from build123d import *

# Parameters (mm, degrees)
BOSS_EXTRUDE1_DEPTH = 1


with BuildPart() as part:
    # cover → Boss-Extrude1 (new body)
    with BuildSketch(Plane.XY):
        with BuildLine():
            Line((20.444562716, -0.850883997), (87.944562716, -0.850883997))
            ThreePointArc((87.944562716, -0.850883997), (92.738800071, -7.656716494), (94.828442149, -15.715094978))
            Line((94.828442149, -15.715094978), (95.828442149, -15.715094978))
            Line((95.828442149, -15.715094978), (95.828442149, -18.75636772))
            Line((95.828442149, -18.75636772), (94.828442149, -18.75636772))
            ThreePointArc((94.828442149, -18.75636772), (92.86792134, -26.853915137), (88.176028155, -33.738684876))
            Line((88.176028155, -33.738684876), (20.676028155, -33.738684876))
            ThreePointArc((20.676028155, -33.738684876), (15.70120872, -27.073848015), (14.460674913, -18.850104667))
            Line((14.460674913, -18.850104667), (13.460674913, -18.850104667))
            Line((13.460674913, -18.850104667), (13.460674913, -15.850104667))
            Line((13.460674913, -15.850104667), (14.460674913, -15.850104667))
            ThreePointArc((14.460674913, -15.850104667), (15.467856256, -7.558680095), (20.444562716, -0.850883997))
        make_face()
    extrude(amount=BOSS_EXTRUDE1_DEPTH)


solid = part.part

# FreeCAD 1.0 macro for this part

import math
import FreeCAD as App
import Part
import Sketcher

V = App.Vector

doc = App.newDocument("Part")
params = doc.addObject("Spreadsheet::Sheet", "Params")
for row, (alias, value) in enumerate([
    ("sketch1_width", "1 mm"),
    ("sketch1_height", "3 mm"),
    ("sketch1_width2", "67.5 mm"),
    ("pad1_length", "1 mm"),
], start=1):
    params.set(f"A{row}", alias)
    params.set(f"B{row}", "=" + value)
    params.setAlias(f"B{row}", alias)

body = doc.addObject("PartDesign::Body", "Body")

# Sketch on XY plane
sketch1 = body.newObject("Sketcher::SketchObject", "Sketch")
sketch1.AttachmentSupport = (doc.getObject("XY_Plane"), [""])
sketch1.MapMode = "FlatFace"
sketch1.addGeometry([
    Part.LineSegment(V(87.9, -0.9, 0), V(20.4, -0.9, 0)),  # 0
    Part.ArcOfCircle(Part.Circle(V(30.6, -13.6, 0), V(0, 0, 1), 16.3), math.radians(129), math.radians(188)),  # 1
    Part.LineSegment(V(14.5, -15.9, 0), V(13.5, -15.9, 0)),  # 2
    Part.LineSegment(V(13.5, -15.9, 0), V(13.5, -18.9, 0)),  # 3
    Part.LineSegment(V(13.5, -18.9, 0), V(14.5, -18.9, 0)),  # 4
    Part.ArcOfCircle(Part.Circle(V(31.5, -20.5, 0), V(0, 0, 1), 17.1), math.radians(174), math.radians(231)),  # 5
    Part.LineSegment(V(20.7, -33.7, 0), V(88.2, -33.7, 0)),  # 6
    Part.ArcOfCircle(Part.Circle(V(71.6, -17.4, 0), V(0, 0, 1), 23.2), math.radians(-45), math.radians(-3)),  # 7
    Part.LineSegment(V(94.8, -18.8, 0), V(95.8, -18.8, 0)),  # 8
    Part.LineSegment(V(95.8, -18.8, 0), V(95.8, -15.7, 0)),  # 9
    Part.LineSegment(V(95.8, -15.7, 0), V(94.8, -15.7, 0)),  # 10
    Part.ArcOfCircle(Part.Circle(V(71.6, -17.4, 0), V(0, 0, 1), 23.3), math.radians(4), math.radians(45)),  # 11
], False)
sketch1.addConstraint([
    Sketcher.Constraint("Coincident", 0, 2, 1, 1),
    Sketcher.Constraint("Coincident", 1, 2, 2, 1),
    Sketcher.Constraint("Coincident", 2, 2, 3, 1),
    Sketcher.Constraint("Coincident", 3, 2, 4, 1),
    Sketcher.Constraint("Coincident", 4, 2, 5, 1),
    Sketcher.Constraint("Coincident", 5, 2, 6, 1),
    Sketcher.Constraint("Coincident", 6, 2, 7, 1),
    Sketcher.Constraint("Coincident", 7, 2, 8, 1),
    Sketcher.Constraint("Coincident", 8, 2, 9, 1),
    Sketcher.Constraint("Coincident", 9, 2, 10, 1),
    Sketcher.Constraint("Coincident", 10, 2, 11, 1),
    Sketcher.Constraint("Coincident", 11, 2, 0, 1),
    Sketcher.Constraint("Horizontal", 0),
    Sketcher.Constraint("Horizontal", 2),
    Sketcher.Constraint("Vertical", 3),
    Sketcher.Constraint("Horizontal", 4),
    Sketcher.Constraint("Horizontal", 6),
    Sketcher.Constraint("Horizontal", 8),
    Sketcher.Constraint("Vertical", 9),
    Sketcher.Constraint("Horizontal", 10),
    Sketcher.Constraint("Coincident", 11, 3, 7, 3),
    Sketcher.Constraint("Vertical", 1, 2, 4, 2),
    Sketcher.Constraint("Vertical", 7, 2, 10, 2),
    Sketcher.Constraint("Equal", 0, 6),
    Sketcher.Constraint("Equal", 4, 8),
    Sketcher.Constraint("DistanceX", 2, 2, 2, 1, 1.0),
    Sketcher.Constraint("DistanceY", 3, 2, 3, 1, 3.0),
    Sketcher.Constraint("DistanceX", 0, 2, 0, 1, 67.5),
    Sketcher.Constraint("Radius", 1, 16.32337),
    Sketcher.Constraint("Radius", 5, 17.093029),
    Sketcher.Constraint("Radius", 7, 23.226889),
    Sketcher.Constraint("Radius", 11, 23.252069),
    Sketcher.Constraint("DistanceX", 0, 2, 7, 3, 51.194999),
    Sketcher.Constraint("DistanceY", 9, 1, 9, 2, 3.041273),
    Sketcher.Constraint("DistanceX", -1, 1, 7, 3, 71.639562),
    Sketcher.Constraint("DistanceX", -1, 1, 5, 2, 20.676028),
    Sketcher.Constraint("DistanceX", 1, 3, 5, 3, 0.84573),
    Sketcher.Constraint("DistanceY", 5, 3, 1, 3, 6.881718),
    Sketcher.Constraint("DistanceY", 1, 3, -1, 1, 13.607257),
])
sketch1.setExpression("Constraints[25]", "Params.sketch1_width")
sketch1.setExpression("Constraints[26]", "Params.sketch1_height")
sketch1.setExpression("Constraints[27]", "Params.sketch1_width2")
pad1 = body.newObject("PartDesign::Pad", "Pad")
pad1.Profile = sketch1
pad1.setExpression("Length", "Params.pad1_length")

doc.recompute()
